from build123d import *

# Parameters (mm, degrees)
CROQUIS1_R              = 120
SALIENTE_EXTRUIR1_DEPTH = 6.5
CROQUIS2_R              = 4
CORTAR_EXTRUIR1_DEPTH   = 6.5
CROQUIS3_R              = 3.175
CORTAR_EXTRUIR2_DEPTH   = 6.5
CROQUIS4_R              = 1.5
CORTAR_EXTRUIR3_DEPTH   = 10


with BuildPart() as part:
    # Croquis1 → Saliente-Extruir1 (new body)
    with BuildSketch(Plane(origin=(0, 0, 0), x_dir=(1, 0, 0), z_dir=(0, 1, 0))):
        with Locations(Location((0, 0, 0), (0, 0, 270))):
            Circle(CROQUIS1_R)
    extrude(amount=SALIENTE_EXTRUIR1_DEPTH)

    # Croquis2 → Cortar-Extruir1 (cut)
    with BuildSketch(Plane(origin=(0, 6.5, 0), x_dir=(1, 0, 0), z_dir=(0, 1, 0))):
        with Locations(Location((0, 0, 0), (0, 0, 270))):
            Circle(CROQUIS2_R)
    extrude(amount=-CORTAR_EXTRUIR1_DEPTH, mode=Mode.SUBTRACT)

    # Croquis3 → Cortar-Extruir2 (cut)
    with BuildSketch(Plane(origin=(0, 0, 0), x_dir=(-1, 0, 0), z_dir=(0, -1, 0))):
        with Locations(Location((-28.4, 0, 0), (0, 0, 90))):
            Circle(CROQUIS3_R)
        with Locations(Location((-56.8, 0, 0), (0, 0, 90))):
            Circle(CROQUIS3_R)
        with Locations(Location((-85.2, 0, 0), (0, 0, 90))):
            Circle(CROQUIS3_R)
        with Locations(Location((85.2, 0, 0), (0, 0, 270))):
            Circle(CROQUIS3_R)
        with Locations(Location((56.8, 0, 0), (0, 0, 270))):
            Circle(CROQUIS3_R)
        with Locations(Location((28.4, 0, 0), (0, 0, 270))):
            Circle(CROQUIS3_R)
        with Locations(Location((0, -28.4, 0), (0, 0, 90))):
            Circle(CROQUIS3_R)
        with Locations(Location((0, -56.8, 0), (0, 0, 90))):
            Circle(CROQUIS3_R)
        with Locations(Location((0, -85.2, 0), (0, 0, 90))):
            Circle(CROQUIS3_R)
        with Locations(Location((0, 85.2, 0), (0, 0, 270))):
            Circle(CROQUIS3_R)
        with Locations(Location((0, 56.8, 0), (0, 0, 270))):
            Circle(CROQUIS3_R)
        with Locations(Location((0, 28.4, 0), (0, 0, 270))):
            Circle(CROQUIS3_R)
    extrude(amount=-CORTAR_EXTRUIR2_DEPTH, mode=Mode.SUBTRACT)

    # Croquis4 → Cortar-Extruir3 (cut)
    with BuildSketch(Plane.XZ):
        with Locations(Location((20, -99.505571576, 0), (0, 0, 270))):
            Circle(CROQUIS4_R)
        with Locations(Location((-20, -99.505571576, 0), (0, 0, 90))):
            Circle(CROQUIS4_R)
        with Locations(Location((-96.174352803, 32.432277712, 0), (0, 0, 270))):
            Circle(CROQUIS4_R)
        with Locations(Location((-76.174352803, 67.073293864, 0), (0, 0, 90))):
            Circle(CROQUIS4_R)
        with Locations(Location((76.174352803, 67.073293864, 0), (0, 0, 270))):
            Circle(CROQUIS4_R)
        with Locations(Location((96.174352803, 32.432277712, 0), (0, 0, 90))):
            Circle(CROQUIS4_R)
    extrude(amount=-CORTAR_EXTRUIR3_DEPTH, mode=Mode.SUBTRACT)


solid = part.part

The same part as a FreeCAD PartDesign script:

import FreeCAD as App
import Part
import Sketcher

V = App.Vector

doc = App.newDocument("Part")
params = doc.addObject("Spreadsheet::Sheet", "Params")
for row, (alias, value) in enumerate([
    ("sketch1_diameter", "240 mm"),
    ("pad1_length", "6.5 mm"),
    ("sketch2_diameter", "8 mm"),
    ("pocket1_length", "6.5 mm"),
    ("sketch3_diameter", "6.35 mm"),
    ("pocket2_length", "6.5 mm"),
    ("sketch4_diameter", "3 mm"),
    ("pocket3_length", "10 mm"),
], start=1):
    params.set(f"A{row}", alias)
    params.set(f"B{row}", "=" + value)
    params.setAlias(f"B{row}", alias)

body = doc.addObject("PartDesign::Body", "Body")

sketch1 = doc.addObject("Sketcher::SketchObject", "Sketch")
body.addObject(sketch1)
sketch1.AttachmentSupport = (doc.XZ_Plane, [""])
sketch1.MapMode = "FlatFace"
sketch1.addGeometry(Part.Circle(V(0, 0, 0), V(0, 0, 1), 120), False)
sketch1.addConstraint([
    Sketcher.Constraint("Coincident", 0, 3, -1, 1),
    Sketcher.Constraint("Diameter", 0, 240.0),
])
sketch1.setExpression("Constraints[1]", "Params.sketch1_diameter")
pad1 = doc.addObject("PartDesign::Pad", "Pad")
body.addObject(pad1)
pad1.Profile = sketch1
pad1.setExpression("Length", "Params.pad1_length")
pad1.Reversed = True

sketch2 = doc.addObject("Sketcher::SketchObject", "Sketch001")
body.addObject(sketch2)
sketch2.AttachmentSupport = (doc.XZ_Plane, [""])
sketch2.MapMode = "FlatFace"
sketch2.AttachmentOffset = App.Placement(V(0, 0, -6.5), App.Rotation())
sketch2.addGeometry(Part.Circle(V(0, 0, 0), V(0, 0, 1), 4), False)
sketch2.addConstraint([
    Sketcher.Constraint("Coincident", 0, 3, -1, 1),
    Sketcher.Constraint("Diameter", 0, 8.0),
])
sketch2.setExpression("Constraints[1]", "Params.sketch2_diameter")
pocket1 = doc.addObject("PartDesign::Pocket", "Pocket")
body.addObject(pocket1)
pocket1.Profile = sketch2
pocket1.setExpression("Length", "Params.pocket1_length")
pocket1.Reversed = True

sketch3 = doc.addObject("Sketcher::SketchObject", "Sketch002")
body.addObject(sketch3)
sketch3.AttachmentSupport = (doc.XZ_Plane, [""])
sketch3.MapMode = "FlatFace"
sketch3.addGeometry([
    Part.Circle(V(28.4, 0, 0), V(0, 0, 1), 3.2),
    Part.Circle(V(56.8, 0, 0), V(0, 0, 1), 3.2),
    Part.Circle(V(85.2, 0, 0), V(0, 0, 1), 3.2),
    Part.Circle(V(-85.2, 0, 0), V(0, 0, 1), 3.2),
    Part.Circle(V(-56.8, 0, 0), V(0, 0, 1), 3.2),
    Part.Circle(V(-28.4, 0, 0), V(0, 0, 1), 3.2),
    Part.Circle(V(0, 28.4, 0), V(0, 0, 1), 3.2),
    Part.Circle(V(0, 56.8, 0), V(0, 0, 1), 3.2),
    Part.Circle(V(0, 85.2, 0), V(0, 0, 1), 3.2),
    Part.Circle(V(0, -85.2, 0), V(0, 0, 1), 3.2),
    Part.Circle(V(0, -56.8, 0), V(0, 0, 1), 3.2),
    Part.Circle(V(0, -28.4, 0), V(0, 0, 1), 3.2),
], False)
sketch3.addConstraint([
    Sketcher.Constraint("Equal", 0, 1),
    Sketcher.Constraint("Equal", 1, 2),
    Sketcher.Constraint("Equal", 2, 3),
    Sketcher.Constraint("Equal", 3, 4),
    Sketcher.Constraint("Equal", 4, 5),
    Sketcher.Constraint("Equal", 5, 6),
    Sketcher.Constraint("Equal", 6, 7),
    Sketcher.Constraint("Equal", 7, 8),
    Sketcher.Constraint("Equal", 8, 9),
    Sketcher.Constraint("Equal", 9, 10),
    Sketcher.Constraint("Equal", 10, 11),
    Sketcher.Constraint("Symmetric", 2, 3, 3, 3, -1, 1),
    Sketcher.Constraint("Symmetric", 1, 3, 4, 3, -1, 1),
    Sketcher.Constraint("Symmetric", 0, 3, 5, 3, -1, 1),
    Sketcher.Constraint("Symmetric", 8, 3, 9, 3, -1, 1),
    Sketcher.Constraint("Symmetric", 7, 3, 10, 3, -1, 1),
    Sketcher.Constraint("Symmetric", 6, 3, 11, 3, -1, 1),
    Sketcher.Constraint("PointOnObject", 0, 3, -1),
    Sketcher.Constraint("PointOnObject", 1, 3, -1),
    Sketcher.Constraint("PointOnObject", 2, 3, -1),
    Sketcher.Constraint("PointOnObject", 6, 3, -2),
    Sketcher.Constraint("PointOnObject", 7, 3, -2),
    Sketcher.Constraint("PointOnObject", 8, 3, -2),
    Sketcher.Constraint("Diameter", 0, 6.35),
    Sketcher.Constraint("DistanceX", 3, 3, 1, 3, 142.0),
    Sketcher.Constraint("DistanceX", -1, 1, 0, 3, 28.4),
    Sketcher.Constraint("DistanceX", -1, 1, 1, 3, 56.8),
    Sketcher.Constraint("DistanceY", -1, 1, 6, 3, 28.4),
    Sketcher.Constraint("DistanceY", -1, 1, 7, 3, 56.8),
    Sketcher.Constraint("DistanceY", -1, 1, 8, 3, 85.2),
])
sketch3.setExpression("Constraints[23]", "Params.sketch3_diameter")
pocket2 = doc.addObject("PartDesign::Pocket", "Pocket001")
body.addObject(pocket2)
pocket2.Profile = sketch3
pocket2.setExpression("Length", "Params.pocket2_length")

sketch4 = doc.addObject("Sketcher::SketchObject", "Sketch003")
body.addObject(sketch4)
sketch4.AttachmentSupport = (doc.XZ_Plane, [""])
sketch4.MapMode = "FlatFace"
sketch4.addGeometry([
    Part.Circle(V(20, -99.5, 0), V(0, 0, 1), 1.5),
    Part.Circle(V(-20, -99.5, 0), V(0, 0, 1), 1.5),
    Part.Circle(V(-96.2, 32.4, 0), V(0, 0, 1), 1.5),
    Part.Circle(V(-76.2, 67.1, 0), V(0, 0, 1), 1.5),
    Part.Circle(V(76.2, 67.1, 0), V(0, 0, 1), 1.5),
    Part.Circle(V(96.2, 32.4, 0), V(0, 0, 1), 1.5),
], False)
sketch4.addConstraint([
    Sketcher.Constraint("Equal", 0, 1),
    Sketcher.Constraint("Equal", 1, 2),
    Sketcher.Constraint("Equal", 2, 3),
    Sketcher.Constraint("Equal", 3, 4),
    Sketcher.Constraint("Equal", 4, 5),
    Sketcher.Constraint("Symmetric", 0, 3, 1, 3, -2),
    Sketcher.Constraint("Symmetric", 3, 3, 4, 3, -2),
    Sketcher.Constraint("Symmetric", 2, 3, 5, 3, -2),
    Sketcher.Constraint("Diameter", 0, 3.0),
    Sketcher.Constraint("DistanceX", -1, 1, 0, 3, 20.0),
    Sketcher.Constraint("DistanceX", 2, 3, 3, 3, 20.0),
    Sketcher.Constraint("DistanceY", 0, 3, -1, 1, 99.505572),
    Sketcher.Constraint("DistanceY", 1, 3, 2, 3, 131.937849),
    Sketcher.Constraint("DistanceX", 2, 3, -1, 1, 96.174353),
    Sketcher.Constraint("DistanceY", -1, 1, 3, 3, 67.073294),
])
sketch4.setExpression("Constraints[8]", "Params.sketch4_diameter")
pocket3 = doc.addObject("PartDesign::Pocket", "Pocket002")
body.addObject(pocket3)
pocket3.Profile = sketch4
pocket3.setExpression("Length", "Params.pocket3_length")

doc.recompute()
